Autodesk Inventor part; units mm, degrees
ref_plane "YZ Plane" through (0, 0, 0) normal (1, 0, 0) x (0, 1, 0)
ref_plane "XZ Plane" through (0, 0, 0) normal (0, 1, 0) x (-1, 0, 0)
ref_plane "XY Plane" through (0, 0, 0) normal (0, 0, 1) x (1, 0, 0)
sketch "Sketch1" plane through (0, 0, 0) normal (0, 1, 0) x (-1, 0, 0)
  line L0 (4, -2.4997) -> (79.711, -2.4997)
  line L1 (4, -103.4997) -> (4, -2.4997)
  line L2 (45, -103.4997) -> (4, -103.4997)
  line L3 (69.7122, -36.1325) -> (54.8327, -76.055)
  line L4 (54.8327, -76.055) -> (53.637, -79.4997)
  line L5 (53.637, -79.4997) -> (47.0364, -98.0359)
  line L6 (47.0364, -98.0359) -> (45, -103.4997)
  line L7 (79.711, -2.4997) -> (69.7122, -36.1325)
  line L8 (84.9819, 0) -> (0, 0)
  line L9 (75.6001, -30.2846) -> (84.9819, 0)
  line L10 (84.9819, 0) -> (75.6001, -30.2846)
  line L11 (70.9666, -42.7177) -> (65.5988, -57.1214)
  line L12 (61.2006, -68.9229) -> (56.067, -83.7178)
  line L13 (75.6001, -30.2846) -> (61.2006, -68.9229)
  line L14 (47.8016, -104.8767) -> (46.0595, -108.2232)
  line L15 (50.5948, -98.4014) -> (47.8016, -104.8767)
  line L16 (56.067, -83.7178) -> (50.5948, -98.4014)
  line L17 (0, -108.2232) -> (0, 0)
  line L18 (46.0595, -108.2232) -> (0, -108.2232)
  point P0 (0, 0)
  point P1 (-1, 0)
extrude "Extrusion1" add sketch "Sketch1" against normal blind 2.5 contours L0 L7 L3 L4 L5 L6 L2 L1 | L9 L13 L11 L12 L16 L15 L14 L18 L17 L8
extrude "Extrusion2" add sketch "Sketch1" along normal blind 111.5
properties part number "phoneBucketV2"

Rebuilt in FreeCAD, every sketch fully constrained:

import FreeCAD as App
import Part
import Sketcher
from FreeCAD import Vector
Q = App.Units.Quantity


def add_polygon(sketch, points):
    """Adds a closed chain of lines whose ends are joined by coincident constraints."""
    first, n = sketch.GeometryCount, len(points)
    for a, b in zip(points, points[1:] + points[:1]):
        sketch.addGeometry(Part.LineSegment(App.Vector(*a, 0), App.Vector(*b, 0)), False)
    for i in range(n):
        sketch.addConstraint(Sketcher.Constraint("Coincident", first + i, 2, first + (i + 1) % n, 1))

doc = App.newDocument("Part")
body = doc.addObject("PartDesign::Body", "Body")

sketch1 = body.newObject("Sketcher::SketchObject", "Sketch")
sketch1.AttachmentSupport = (doc.getObject("XZ_Plane"), [""])
sketch1.MapMode = "FlatFace"
add_polygon(sketch1, [(-75.6001, -30.2846), (-84.9819, 0), (0, 0), (0, -108.2232), (-46.0595, -108.2232), (-47.8016, -104.8767), (-50.5948, -98.4014), (-56.067, -83.7178), (-61.2006, -68.9229), (-65.5988, -57.1214), (-70.966603, -42.717701)])
sketch1.addConstraint([
    Sketcher.Constraint("Horizontal", 1),
    Sketcher.Constraint("Vertical", 2),
    Sketcher.Constraint("Horizontal", 3),
    Sketcher.Constraint("Coincident", 1, 2, -1, 1),
    Sketcher.Constraint("Parallel", 6, 8),
    Sketcher.Constraint("Parallel", 8, 9),
    Sketcher.Constraint("Parallel", 9, 10),
    Sketcher.Constraint("Angle", 4, Q("117.5003 deg")),
    Sketcher.Constraint("DistanceY", 6, 2, 9, 2, Q("41 mm")),
    Sketcher.Constraint("DistanceX", 10, 2, -1, 1, Q("75.6 mm")),
    Sketcher.Constraint("Angle", 6, Q("110.4391 deg")),
    Sketcher.Constraint("DistanceX", 1, 1, 1, 2, Q("84.982 mm")),
    Sketcher.Constraint("DistanceY", 5, 2, 8, 2, Q("41.28 mm")),
    Sketcher.Constraint("Distance", 5, Q("7.052 mm")),
    Sketcher.Constraint("DistanceX", 3, 2, 3, 1, Q("46.0595 mm")),
    Sketcher.Constraint("DistanceY", 2, 2, 2, 1, Q("108.2232 mm")),
    Sketcher.Constraint("DistanceX", 6, 2, -1, 1, Q("56.067 mm")),
    Sketcher.Constraint("DistanceY", 7, 2, -1, 1, Q("68.923 mm")),
    Sketcher.Constraint("DistanceX", 4, 2, 3, 2, Q("1.742 mm")),
    Sketcher.Constraint("DistanceX", 0, 2, 5, 2, Q("34.387 mm")),
    Sketcher.Constraint("DistanceX", 7, 2, 4, 2, Q("13.399 mm")),
])
pad1 = body.newObject("PartDesign::Pad", "Pad")
pad1.Profile = sketch1
pad1.Length = 2.5

sketch2 = body.newObject("Sketcher::SketchObject", "Sketch001")
sketch2.AttachmentSupport = (doc.getObject("XZ_Plane"), [""])
sketch2.MapMode = "FlatFace"
add_polygon(sketch2, [(-75.6001, -30.2846), (-84.9819, 0), (0, 0), (0, -108.2232), (-46.0595, -108.2232), (-47.8016, -104.8767), (-50.5948, -98.4014), (-56.067, -83.7178), (-61.2006, -68.9229), (-65.5988, -57.1214), (-70.966603, -42.717701)])
add_polygon(sketch2, [(-4, -103.4997), (-4, -2.4997), (-79.711, -2.4997), (-69.7122, -36.1325), (-54.8327, -76.055), (-53.637, -79.4997), (-47.0364, -98.0359), (-45, -103.4997)])
sketch2.addConstraint([
    Sketcher.Constraint("Horizontal", 1),
    Sketcher.Constraint("Vertical", 2),
    Sketcher.Constraint("Horizontal", 3),
    Sketcher.Constraint("Vertical", 11),
    Sketcher.Constraint("Horizontal", 12),
    Sketcher.Constraint("Horizontal", 18),
    Sketcher.Constraint("Coincident", 1, 2, -1, 1),
    Sketcher.Constraint("DistanceX", 18, 1, 18, 2, Q("41 mm")),
    Sketcher.Constraint("DistanceY", 11, 1, 11, 2, Q("101 mm")),
    Sketcher.Constraint("DistanceX", 11, 2, -1, 1, Q("4 mm")),
    Sketcher.Constraint("DistanceY", 6, 2, 9, 2, Q("41 mm")),
    Sketcher.Constraint("DistanceX", 10, 2, -1, 1, Q("75.6 mm")),
    Sketcher.Constraint("DistanceX", 1, 1, 1, 2, Q("84.982 mm")),
    Sketcher.Constraint("DistanceX", 12, 2, 12, 1, Q("75.711 mm")),
    Sketcher.Constraint("DistanceY", 5, 2, 8, 2, Q("41.28 mm")),
    Sketcher.Constraint("DistanceX", 6, 2, 15, 2, Q("2.43 mm")),
    Sketcher.Constraint("Distance", 5, Q("7.052 mm")),
    Sketcher.Constraint("Distance", 17, Q("5.831 mm")),
    Sketcher.Constraint("DistanceX", 3, 2, 3, 1, Q("46.0595 mm")),
    Sketcher.Constraint("DistanceY", 2, 2, 2, 1, Q("108.2232 mm")),
    Sketcher.Constraint("DistanceX", 6, 2, -1, 1, Q("56.067 mm")),
    Sketcher.Constraint("DistanceY", 7, 2, -1, 1, Q("68.923 mm")),
    Sketcher.Constraint("DistanceY", 14, 2, -1, 1, Q("76.055 mm")),
    Sketcher.Constraint("DistanceY", 16, 2, -1, 1, Q("98.036 mm")),
    Sketcher.Constraint("DistanceX", 4, 2, 3, 2, Q("1.742 mm")),
    Sketcher.Constraint("DistanceX", 0, 2, 5, 2, Q("34.387 mm")),
    Sketcher.Constraint("DistanceY", 4, 2, 6, 2, Q("21.159 mm")),
    Sketcher.Constraint("DistanceY", 6, 2, 7, 2, Q("14.795 mm")),
    Sketcher.Constraint("DistanceX", 7, 2, 4, 2, Q("13.399 mm")),
    Sketcher.Constraint("DistanceX", 8, 2, 5, 2, Q("15.004 mm")),
    Sketcher.Constraint("DistanceX", 9, 2, 7, 2, Q("9.766 mm")),
    Sketcher.Constraint("DistanceY", 9, 2, 10, 2, Q("12.433 mm")),
    Sketcher.Constraint("DistanceY", 10, 2, 11, 2, Q("27.785 mm")),
    Sketcher.Constraint("DistanceX", 10, 2, 13, 2, Q("5.888 mm")),
    Sketcher.Constraint("DistanceY", 13, 2, 10, 2, Q("5.848 mm")),
    Sketcher.Constraint("DistanceX", 7, 2, 14, 2, Q("6.368 mm")),
    Sketcher.Constraint("DistanceY", 6, 2, 15, 2, Q("4.218 mm")),
])
pad2 = body.newObject("PartDesign::Pad", "Pad001")
pad2.Profile = sketch2
pad2.Length = 111.5
pad2.Reversed = True

doc.recompute()
